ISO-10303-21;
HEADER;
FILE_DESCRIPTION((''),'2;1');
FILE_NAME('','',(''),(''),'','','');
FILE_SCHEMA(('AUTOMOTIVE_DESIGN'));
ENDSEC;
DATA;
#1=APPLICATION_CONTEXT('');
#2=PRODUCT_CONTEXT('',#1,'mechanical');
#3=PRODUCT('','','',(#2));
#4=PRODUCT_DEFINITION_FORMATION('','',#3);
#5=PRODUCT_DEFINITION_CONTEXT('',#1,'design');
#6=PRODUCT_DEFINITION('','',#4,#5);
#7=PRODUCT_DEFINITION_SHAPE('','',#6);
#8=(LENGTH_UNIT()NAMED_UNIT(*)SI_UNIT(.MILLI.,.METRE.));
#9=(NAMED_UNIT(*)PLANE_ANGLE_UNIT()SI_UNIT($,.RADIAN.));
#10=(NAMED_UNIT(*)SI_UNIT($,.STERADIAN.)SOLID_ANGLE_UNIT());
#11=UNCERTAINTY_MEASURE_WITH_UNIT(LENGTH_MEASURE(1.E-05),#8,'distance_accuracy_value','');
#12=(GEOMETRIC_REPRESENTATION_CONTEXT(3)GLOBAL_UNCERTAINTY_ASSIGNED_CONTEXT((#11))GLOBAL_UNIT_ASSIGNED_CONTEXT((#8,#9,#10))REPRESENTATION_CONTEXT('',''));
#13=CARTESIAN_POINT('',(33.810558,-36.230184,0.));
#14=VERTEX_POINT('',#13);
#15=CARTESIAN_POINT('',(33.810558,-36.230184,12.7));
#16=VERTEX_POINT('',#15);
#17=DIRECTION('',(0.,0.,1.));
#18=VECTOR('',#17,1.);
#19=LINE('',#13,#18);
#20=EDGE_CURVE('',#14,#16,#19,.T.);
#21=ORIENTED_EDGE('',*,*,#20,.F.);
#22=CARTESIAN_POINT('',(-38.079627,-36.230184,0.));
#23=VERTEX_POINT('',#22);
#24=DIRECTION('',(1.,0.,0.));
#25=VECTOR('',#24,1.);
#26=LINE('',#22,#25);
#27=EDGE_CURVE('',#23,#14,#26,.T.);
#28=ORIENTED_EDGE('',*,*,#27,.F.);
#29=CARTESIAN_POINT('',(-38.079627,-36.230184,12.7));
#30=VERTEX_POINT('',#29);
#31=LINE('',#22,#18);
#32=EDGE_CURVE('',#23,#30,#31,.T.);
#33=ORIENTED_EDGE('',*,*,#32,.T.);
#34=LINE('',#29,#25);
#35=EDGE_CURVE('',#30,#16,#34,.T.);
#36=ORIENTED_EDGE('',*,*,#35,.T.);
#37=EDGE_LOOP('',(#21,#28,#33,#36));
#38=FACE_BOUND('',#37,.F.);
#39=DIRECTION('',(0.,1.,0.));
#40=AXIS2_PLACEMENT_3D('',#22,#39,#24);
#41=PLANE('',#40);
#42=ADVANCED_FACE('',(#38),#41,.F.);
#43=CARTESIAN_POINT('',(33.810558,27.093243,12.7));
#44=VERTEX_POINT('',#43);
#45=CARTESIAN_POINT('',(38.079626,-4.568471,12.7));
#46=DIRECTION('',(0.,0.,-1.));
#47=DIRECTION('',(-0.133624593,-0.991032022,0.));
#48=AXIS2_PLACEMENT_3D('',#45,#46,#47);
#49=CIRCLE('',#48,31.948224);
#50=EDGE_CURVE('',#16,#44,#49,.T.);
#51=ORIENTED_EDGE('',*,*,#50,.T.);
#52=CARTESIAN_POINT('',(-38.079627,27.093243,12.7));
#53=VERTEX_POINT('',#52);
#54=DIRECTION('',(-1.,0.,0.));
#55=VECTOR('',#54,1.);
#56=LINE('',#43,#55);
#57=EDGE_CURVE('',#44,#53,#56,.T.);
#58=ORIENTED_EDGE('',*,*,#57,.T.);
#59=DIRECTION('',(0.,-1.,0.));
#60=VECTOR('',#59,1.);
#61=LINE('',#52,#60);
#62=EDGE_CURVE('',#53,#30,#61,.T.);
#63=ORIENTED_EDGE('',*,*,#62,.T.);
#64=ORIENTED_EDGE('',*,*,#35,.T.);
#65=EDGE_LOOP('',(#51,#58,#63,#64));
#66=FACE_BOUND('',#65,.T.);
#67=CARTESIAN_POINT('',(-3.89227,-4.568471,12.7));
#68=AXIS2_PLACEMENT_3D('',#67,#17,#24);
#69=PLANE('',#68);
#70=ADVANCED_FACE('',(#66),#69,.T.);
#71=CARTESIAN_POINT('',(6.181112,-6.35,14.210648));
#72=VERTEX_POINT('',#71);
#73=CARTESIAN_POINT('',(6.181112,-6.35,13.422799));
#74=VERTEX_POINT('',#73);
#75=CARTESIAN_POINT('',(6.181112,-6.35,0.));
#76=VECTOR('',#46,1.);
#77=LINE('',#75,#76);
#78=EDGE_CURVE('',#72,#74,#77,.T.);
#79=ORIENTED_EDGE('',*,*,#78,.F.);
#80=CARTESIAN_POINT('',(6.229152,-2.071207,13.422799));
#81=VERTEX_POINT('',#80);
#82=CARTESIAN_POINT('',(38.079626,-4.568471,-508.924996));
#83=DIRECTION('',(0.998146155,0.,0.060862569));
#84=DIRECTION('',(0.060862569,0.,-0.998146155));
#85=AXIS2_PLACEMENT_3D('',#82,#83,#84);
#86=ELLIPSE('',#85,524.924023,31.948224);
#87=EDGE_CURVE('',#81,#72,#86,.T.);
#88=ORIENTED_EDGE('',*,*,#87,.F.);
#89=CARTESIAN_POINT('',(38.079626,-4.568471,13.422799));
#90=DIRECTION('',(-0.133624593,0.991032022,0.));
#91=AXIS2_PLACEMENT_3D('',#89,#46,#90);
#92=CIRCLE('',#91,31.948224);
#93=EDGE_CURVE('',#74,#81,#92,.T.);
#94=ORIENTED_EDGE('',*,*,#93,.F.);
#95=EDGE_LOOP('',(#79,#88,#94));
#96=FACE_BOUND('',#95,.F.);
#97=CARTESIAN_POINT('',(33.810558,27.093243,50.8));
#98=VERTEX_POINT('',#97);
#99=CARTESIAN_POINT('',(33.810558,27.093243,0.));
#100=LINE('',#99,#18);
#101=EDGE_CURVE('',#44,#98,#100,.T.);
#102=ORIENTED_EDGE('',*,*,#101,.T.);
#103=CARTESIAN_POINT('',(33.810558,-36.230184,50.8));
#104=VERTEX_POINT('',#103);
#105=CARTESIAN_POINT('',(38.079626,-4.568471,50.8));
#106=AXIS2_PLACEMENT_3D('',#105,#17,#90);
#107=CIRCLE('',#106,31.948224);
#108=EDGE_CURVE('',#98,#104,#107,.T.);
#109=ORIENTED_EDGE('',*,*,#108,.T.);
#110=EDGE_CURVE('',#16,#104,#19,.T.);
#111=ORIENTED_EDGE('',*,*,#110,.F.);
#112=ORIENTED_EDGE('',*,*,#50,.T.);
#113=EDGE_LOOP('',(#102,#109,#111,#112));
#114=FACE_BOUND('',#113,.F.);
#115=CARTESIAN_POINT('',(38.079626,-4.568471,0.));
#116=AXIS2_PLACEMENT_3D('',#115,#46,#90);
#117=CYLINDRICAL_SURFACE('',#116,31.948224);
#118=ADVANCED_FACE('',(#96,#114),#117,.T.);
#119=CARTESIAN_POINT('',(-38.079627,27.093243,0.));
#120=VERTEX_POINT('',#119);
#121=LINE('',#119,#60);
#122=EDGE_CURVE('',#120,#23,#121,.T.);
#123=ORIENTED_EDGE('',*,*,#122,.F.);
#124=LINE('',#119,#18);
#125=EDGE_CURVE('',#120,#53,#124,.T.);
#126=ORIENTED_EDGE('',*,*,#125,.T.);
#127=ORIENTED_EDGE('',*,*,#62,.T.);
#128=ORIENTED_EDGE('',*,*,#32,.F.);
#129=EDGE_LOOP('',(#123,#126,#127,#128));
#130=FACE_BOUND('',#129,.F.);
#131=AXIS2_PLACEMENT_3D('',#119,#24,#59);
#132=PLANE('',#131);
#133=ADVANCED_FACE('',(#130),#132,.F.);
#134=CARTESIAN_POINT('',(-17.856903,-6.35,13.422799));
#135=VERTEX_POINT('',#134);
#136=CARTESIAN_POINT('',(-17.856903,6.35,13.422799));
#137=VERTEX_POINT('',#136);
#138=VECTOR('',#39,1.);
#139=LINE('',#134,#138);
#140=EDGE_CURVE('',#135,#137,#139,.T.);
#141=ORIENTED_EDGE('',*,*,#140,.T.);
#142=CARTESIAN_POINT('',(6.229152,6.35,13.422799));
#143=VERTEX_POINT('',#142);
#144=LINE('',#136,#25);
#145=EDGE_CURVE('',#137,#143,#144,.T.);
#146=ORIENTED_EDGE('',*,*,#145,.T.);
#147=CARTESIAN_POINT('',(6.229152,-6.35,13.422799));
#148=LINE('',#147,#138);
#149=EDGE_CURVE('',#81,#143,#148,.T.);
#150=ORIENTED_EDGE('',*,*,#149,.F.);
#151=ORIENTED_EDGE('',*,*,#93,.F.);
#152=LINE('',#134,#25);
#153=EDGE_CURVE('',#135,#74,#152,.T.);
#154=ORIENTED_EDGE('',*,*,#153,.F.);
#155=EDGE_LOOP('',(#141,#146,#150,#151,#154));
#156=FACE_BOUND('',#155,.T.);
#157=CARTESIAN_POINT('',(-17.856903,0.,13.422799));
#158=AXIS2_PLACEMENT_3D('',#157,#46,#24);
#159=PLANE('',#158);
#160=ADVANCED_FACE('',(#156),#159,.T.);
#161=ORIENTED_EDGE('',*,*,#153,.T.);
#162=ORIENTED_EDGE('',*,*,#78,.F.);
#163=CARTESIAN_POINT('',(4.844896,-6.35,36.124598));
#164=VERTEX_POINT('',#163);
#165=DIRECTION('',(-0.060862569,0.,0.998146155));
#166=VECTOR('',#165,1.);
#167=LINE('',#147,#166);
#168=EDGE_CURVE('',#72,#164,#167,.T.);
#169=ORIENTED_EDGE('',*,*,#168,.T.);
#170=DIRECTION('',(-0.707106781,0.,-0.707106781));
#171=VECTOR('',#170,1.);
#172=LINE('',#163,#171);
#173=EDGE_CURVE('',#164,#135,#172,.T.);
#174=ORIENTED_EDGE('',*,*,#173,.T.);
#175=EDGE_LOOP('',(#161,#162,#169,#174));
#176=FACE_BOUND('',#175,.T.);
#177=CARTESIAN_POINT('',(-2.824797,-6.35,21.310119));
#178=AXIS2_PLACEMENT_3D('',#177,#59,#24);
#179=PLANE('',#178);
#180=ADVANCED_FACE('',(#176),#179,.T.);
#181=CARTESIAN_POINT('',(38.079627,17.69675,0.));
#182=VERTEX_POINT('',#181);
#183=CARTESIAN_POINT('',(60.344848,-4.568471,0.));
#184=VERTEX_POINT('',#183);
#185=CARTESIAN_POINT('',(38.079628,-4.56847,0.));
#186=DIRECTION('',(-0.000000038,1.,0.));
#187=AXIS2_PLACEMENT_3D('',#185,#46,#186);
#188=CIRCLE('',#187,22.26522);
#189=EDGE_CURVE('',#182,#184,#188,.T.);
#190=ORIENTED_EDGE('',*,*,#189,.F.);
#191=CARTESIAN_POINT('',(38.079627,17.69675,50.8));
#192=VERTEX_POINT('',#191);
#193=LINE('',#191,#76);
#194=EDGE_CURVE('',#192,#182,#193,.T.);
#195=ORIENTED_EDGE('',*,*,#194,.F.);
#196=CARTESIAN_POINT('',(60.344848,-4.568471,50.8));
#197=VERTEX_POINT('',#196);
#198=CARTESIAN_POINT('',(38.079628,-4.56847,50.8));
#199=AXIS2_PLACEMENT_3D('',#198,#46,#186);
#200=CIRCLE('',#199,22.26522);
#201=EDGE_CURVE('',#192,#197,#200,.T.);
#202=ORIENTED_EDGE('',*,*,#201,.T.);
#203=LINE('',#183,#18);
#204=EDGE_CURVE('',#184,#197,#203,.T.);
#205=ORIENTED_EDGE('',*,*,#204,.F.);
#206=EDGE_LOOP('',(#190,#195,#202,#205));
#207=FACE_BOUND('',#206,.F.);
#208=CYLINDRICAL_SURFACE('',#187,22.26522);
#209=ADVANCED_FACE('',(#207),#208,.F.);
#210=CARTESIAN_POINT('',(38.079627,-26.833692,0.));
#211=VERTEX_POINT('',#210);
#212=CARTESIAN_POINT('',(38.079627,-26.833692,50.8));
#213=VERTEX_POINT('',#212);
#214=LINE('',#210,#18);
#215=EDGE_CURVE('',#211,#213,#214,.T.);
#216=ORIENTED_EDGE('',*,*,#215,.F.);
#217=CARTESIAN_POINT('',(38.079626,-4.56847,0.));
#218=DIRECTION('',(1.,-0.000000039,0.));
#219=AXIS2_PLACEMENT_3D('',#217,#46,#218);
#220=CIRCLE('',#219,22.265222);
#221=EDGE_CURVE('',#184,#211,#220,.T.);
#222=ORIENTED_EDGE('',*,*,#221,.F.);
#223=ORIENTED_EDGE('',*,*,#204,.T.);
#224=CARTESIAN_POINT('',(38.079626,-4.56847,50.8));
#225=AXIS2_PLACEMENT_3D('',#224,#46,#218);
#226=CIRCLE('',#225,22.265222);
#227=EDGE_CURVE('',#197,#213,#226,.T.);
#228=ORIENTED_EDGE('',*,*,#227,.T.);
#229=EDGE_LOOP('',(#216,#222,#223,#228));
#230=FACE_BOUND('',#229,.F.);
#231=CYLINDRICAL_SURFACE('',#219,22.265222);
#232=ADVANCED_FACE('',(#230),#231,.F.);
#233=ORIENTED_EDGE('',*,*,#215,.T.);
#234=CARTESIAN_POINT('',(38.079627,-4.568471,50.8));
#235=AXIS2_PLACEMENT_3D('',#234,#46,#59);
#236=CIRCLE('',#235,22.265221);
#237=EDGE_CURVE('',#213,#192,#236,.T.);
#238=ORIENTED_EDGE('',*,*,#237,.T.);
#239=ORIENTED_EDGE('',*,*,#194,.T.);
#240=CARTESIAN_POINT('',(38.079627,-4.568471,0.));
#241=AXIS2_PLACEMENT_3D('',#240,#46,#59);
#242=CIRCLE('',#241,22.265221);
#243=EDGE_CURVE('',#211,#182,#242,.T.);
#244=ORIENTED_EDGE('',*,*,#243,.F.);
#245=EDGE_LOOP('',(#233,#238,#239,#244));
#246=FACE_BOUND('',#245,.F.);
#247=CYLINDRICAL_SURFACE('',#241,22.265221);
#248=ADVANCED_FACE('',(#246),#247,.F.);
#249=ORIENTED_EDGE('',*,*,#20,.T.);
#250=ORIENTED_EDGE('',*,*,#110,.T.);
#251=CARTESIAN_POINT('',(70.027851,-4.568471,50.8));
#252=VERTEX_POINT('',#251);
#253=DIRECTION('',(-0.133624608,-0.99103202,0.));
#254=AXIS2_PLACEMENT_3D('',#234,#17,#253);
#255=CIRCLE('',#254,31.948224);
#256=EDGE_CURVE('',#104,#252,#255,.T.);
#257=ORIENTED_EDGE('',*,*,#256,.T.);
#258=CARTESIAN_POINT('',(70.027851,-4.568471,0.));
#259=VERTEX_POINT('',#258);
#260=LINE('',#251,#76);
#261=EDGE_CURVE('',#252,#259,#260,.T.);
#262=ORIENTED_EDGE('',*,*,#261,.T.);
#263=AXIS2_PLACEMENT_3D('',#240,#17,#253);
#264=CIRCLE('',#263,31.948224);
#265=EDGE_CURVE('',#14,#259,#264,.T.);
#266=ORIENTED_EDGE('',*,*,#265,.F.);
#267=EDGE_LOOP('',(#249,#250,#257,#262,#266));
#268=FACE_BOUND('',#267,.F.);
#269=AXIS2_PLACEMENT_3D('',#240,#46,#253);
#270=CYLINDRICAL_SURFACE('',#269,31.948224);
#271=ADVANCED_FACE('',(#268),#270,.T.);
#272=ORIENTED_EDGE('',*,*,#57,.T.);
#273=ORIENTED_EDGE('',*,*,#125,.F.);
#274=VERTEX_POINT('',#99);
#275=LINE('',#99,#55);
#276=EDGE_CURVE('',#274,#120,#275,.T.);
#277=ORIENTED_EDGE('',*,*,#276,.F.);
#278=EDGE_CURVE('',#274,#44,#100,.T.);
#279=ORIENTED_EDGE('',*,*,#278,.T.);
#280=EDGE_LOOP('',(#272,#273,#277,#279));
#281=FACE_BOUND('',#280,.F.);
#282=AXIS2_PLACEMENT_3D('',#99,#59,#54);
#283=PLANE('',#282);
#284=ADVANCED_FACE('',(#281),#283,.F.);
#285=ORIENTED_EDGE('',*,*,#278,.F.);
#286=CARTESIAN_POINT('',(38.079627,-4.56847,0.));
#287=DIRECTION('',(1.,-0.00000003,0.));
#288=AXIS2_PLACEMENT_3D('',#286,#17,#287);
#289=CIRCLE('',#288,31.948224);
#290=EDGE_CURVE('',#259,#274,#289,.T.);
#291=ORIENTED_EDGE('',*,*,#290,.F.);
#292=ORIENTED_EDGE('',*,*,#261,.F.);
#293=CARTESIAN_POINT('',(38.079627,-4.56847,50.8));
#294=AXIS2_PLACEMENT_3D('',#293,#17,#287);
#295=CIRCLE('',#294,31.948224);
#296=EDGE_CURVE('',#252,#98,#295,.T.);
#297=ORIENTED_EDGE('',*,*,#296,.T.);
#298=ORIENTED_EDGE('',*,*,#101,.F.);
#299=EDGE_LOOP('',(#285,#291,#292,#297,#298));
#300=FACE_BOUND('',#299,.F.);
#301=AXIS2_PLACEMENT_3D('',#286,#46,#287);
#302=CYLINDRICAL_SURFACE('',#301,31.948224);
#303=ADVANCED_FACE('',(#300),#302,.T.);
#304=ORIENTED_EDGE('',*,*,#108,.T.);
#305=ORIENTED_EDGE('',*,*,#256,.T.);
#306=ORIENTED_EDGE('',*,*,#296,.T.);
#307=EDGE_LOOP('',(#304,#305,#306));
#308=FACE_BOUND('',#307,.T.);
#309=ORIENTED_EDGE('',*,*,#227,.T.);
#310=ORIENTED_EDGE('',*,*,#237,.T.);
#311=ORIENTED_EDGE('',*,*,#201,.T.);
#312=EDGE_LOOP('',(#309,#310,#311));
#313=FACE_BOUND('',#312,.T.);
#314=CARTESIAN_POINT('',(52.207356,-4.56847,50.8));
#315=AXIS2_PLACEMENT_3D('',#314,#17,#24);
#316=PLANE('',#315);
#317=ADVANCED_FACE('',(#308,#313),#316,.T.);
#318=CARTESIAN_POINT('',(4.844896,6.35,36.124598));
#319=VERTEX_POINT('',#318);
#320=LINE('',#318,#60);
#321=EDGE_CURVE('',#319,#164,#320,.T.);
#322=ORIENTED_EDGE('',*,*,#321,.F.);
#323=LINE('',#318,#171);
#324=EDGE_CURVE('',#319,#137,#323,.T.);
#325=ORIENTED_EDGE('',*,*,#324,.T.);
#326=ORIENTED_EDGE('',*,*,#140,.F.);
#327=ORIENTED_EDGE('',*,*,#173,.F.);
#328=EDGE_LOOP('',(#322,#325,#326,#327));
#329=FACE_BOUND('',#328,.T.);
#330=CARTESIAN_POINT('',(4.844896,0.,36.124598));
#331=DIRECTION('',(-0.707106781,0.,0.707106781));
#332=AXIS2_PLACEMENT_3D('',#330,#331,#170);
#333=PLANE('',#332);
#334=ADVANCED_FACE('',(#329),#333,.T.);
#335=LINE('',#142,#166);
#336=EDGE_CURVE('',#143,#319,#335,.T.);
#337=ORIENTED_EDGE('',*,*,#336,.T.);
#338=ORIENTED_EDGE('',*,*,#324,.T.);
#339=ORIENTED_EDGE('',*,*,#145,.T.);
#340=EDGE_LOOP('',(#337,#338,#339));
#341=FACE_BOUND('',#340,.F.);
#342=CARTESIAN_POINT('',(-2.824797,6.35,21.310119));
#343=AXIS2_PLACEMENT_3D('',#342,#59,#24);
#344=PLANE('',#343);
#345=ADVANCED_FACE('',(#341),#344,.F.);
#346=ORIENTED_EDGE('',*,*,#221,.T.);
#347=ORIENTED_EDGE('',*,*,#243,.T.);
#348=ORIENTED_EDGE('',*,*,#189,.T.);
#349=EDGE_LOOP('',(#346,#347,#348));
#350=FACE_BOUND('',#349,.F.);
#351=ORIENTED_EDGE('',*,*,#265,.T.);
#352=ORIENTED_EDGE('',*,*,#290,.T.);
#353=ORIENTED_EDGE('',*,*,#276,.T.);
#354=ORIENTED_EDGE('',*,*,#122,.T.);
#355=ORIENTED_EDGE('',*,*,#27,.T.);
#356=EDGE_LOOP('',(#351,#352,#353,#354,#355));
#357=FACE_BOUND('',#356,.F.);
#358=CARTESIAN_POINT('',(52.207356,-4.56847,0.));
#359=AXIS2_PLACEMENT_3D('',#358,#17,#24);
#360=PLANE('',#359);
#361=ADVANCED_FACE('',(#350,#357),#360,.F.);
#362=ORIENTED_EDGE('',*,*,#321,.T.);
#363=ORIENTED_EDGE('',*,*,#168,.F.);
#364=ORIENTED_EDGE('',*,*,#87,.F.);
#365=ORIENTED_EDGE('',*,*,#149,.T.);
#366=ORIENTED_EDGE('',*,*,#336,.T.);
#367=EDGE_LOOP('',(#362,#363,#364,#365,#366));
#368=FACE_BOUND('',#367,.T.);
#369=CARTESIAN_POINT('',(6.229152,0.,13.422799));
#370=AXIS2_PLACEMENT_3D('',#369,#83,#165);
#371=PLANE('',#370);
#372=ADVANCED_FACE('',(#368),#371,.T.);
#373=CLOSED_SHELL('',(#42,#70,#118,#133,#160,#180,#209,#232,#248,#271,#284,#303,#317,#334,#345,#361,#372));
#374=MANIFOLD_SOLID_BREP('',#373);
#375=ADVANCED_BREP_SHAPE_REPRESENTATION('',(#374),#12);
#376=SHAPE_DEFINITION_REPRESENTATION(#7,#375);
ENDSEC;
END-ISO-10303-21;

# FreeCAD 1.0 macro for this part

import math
import FreeCAD as App
import Part
import Sketcher
from FreeCAD import Vector
Q = App.Units.Quantity


def add_polygon(sketch, points):
    """Adds a closed chain of lines whose ends are joined by coincident constraints."""
    first, n = sketch.GeometryCount, len(points)
    for a, b in zip(points, points[1:] + points[:1]):
        sketch.addGeometry(Part.LineSegment(App.Vector(*a, 0), App.Vector(*b, 0)), False)
    for i in range(n):
        sketch.addConstraint(Sketcher.Constraint("Coincident", first + i, 2, first + (i + 1) % n, 1))

doc = App.newDocument("Part")
body = doc.addObject("PartDesign::Body", "Body")

# Sketch on XY plane
sketch1 = doc.addObject("Sketcher::SketchObject", "Sketch")
body.addObject(sketch1)
sketch1.AttachmentSupport = (doc.XY_Plane, [""])
sketch1.MapMode = "FlatFace"
sketch1.addGeometry(Part.ArcOfCircle(Part.Circle(Vector(38, -5, 0), Vector(0, 0, 1), 32), math.radians(-98), math.radians(0)), False)
sketch1.addGeometry(Part.ArcOfCircle(Part.Circle(Vector(38, -5, 0), Vector(0, 0, 1), 32), math.radians(0), math.radians(98)), False)
sketch1.addGeometry(Part.ArcOfCircle(Part.Circle(Vector(38, -5, 0), Vector(0, 0, 1), 32), math.radians(98), math.radians(262)), False)
sketch1.addGeometry(Part.ArcOfCircle(Part.Circle(Vector(38, -5, 0), Vector(0, 0, 1), 22), math.radians(0), math.radians(90)), False)
sketch1.addGeometry(Part.ArcOfCircle(Part.Circle(Vector(38, -5, 0), Vector(0, 0, 1), 22), math.radians(-90), math.radians(0)), False)
sketch1.addGeometry(Part.ArcOfCircle(Part.Circle(Vector(38, -5, 0), Vector(0, 0, 1), 22), math.radians(90), math.radians(270)), False)
sketch1.addConstraint(Sketcher.Constraint("Tangent", 0, 2, 1, 1))
sketch1.addConstraint(Sketcher.Constraint("Tangent", 1, 2, 2, 1))
sketch1.addConstraint(Sketcher.Constraint("Tangent", 2, 2, 0, 1))
sketch1.addConstraint(Sketcher.Constraint("Tangent", 3, 1, 4, 2))
sketch1.addConstraint(Sketcher.Constraint("Tangent", 4, 1, 5, 2))
sketch1.addConstraint(Sketcher.Constraint("Tangent", 5, 1, 3, 2))
sketch1.addConstraint(Sketcher.Constraint("Coincident", 3, 3, 0, 3))
sketch1.addConstraint(Sketcher.Constraint("Horizontal", 5, 3, 0, 2))
sketch1.addConstraint(Sketcher.Constraint("Horizontal", 0, 2, 3, 1))
sketch1.addConstraint(Sketcher.Constraint("Vertical", 1, 2, 2, 2))
sketch1.addConstraint(Sketcher.Constraint("Vertical", 5, 3, 4, 1))
sketch1.addConstraint(Sketcher.Constraint("Vertical", 4, 1, 5, 1))
sketch1.addConstraint(Sketcher.Constraint("Radius", 3, Q("22.26522 mm")))
sketch1.addConstraint(Sketcher.Constraint("Radius", 0, Q("31.948224 mm")))
sketch1.addConstraint(Sketcher.Constraint("DistanceY", 0, 3, -1, 1, Q("4.568471 mm")))
sketch1.addConstraint(Sketcher.Constraint("DistanceX", -1, 1, 0, 2, Q("70.027851 mm")))
sketch1.addConstraint(Sketcher.Constraint("DistanceX", -1, 1, 2, 2, Q("33.810558 mm")))
pad1 = doc.addObject("PartDesign::Pad", "Pad")
body.addObject(pad1)
pad1.Profile = sketch1
pad1.Length = Q("2 in")

# Sketch on XY plane
sketch2 = doc.addObject("Sketcher::SketchObject", "Sketch001")
body.addObject(sketch2)
sketch2.AttachmentSupport = (doc.XY_Plane, [""])
sketch2.MapMode = "FlatFace"
sketch2.addGeometry(Part.LineSegment(Vector(33.8, 27.1, 0), Vector(38.1, 27.1, 0)), False)
sketch2.addGeometry(Part.LineSegment(Vector(38.1, 27.1, 0), Vector(38.1, 17.7, 0)), False)
sketch2.addGeometry(Part.ArcOfCircle(Part.Circle(Vector(38.1, -4.6, 0), Vector(0, 0, 1), 22.3), math.radians(0), math.radians(90)), False)
sketch2.addGeometry(Part.ArcOfCircle(Part.Circle(Vector(38.1, -4.6, 0), Vector(0, 0, 1), 22.3), math.radians(-90), math.radians(0)), False)
sketch2.addGeometry(Part.LineSegment(Vector(38.1, -26.8, 0), Vector(38.1, -36.2, 0)), False)
sketch2.addGeometry(Part.LineSegment(Vector(38.1, -36.2, 0), Vector(33.8, -36.2, 0)), False)
sketch2.addGeometry(Part.ArcOfCircle(Part.Circle(Vector(38.1, -4.6, 0), Vector(0, 0, 1), 31.9), math.radians(-98), math.radians(0)), False)
sketch2.addGeometry(Part.ArcOfCircle(Part.Circle(Vector(38.1, -4.6, 0), Vector(0, 0, 1), 31.9), math.radians(0), math.radians(98)), False)
sketch2.addGeometry(Part.ArcOfCircle(Part.Circle(Vector(38.1, -4.6, 0), Vector(0, 0, 1), 31.9), math.radians(98), math.radians(262)), False)
sketch2.addGeometry(Part.LineSegment(Vector(33.8, 27.1, 0), Vector(-38.1, 27.1, 0)), False)
sketch2.addGeometry(Part.LineSegment(Vector(-38.1, 27.1, 0), Vector(-38.1, -36.2, 0)), False)
sketch2.addGeometry(Part.LineSegment(Vector(-38.1, -36.2, 0), Vector(33.8, -36.2, 0)), False)
sketch2.addConstraint(Sketcher.Constraint("Coincident", 0, 2, 1, 1))
sketch2.addConstraint(Sketcher.Constraint("Coincident", 1, 2, 2, 2))
sketch2.addConstraint(Sketcher.Constraint("Tangent", 2, 1, 3, 2))
sketch2.addConstraint(Sketcher.Constraint("Coincident", 3, 1, 4, 1))
sketch2.addConstraint(Sketcher.Constraint("Coincident", 4, 2, 5, 1))
sketch2.addConstraint(Sketcher.Constraint("Coincident", 5, 2, 6, 1))
sketch2.addConstraint(Sketcher.Constraint("Tangent", 6, 2, 7, 1))
sketch2.addConstraint(Sketcher.Constraint("Coincident", 7, 2, 0, 1))
sketch2.addConstraint(Sketcher.Constraint("Coincident", 8, 1, 9, 1))
sketch2.addConstraint(Sketcher.Constraint("Coincident", 9, 2, 10, 1))
sketch2.addConstraint(Sketcher.Constraint("Coincident", 10, 2, 11, 1))
sketch2.addConstraint(Sketcher.Constraint("Coincident", 11, 2, 8, 2))
sketch2.addConstraint(Sketcher.Constraint("Horizontal", 0))
sketch2.addConstraint(Sketcher.Constraint("Vertical", 1))
sketch2.addConstraint(Sketcher.Constraint("Vertical", 4))
sketch2.addConstraint(Sketcher.Constraint("Horizontal", 5))
sketch2.addConstraint(Sketcher.Constraint("Horizontal", 9))
sketch2.addConstraint(Sketcher.Constraint("Vertical", 10))
sketch2.addConstraint(Sketcher.Constraint("Horizontal", 11))
sketch2.addConstraint(Sketcher.Constraint("Coincident", 6, 3, 2, 3))
sketch2.addConstraint(Sketcher.Constraint("Coincident", 8, 3, 2, 3))
sketch2.addConstraint(Sketcher.Constraint("Coincident", 8, 1, 7, 2))
sketch2.addConstraint(Sketcher.Constraint("Coincident", 11, 2, 5, 2))
sketch2.addConstraint(Sketcher.Constraint("Equal", 2, 3))
sketch2.addConstraint(Sketcher.Constraint("Horizontal", 8, 3, 2, 1))
sketch2.addConstraint(Sketcher.Constraint("Horizontal", 2, 1, 6, 2))
sketch2.addConstraint(Sketcher.Constraint("Vertical", 8, 3, 0, 2))
sketch2.addConstraint(Sketcher.Constraint("Vertical", 1, 2, 3, 1))
sketch2.addConstraint(Sketcher.Constraint("Vertical", 5, 2, 7, 2))
sketch2.addConstraint(Sketcher.Constraint("Radius", 2, Q("22.26522 mm")))
sketch2.addConstraint(Sketcher.Constraint("Radius", 6, Q("31.948224 mm")))
sketch2.addConstraint(Sketcher.Constraint("DistanceX", 0, 1, 0, 2, Q("4.269069 mm")))
sketch2.addConstraint(Sketcher.Constraint("DistanceX", 9, 2, 9, 1, Q("71.890185 mm")))
sketch2.addConstraint(Sketcher.Constraint("DistanceY", 2, 3, -1, 1, Q("4.56847 mm")))
sketch2.addConstraint(Sketcher.Constraint("DistanceX", -1, 1, 6, 2, Q("70.027851 mm")))
pad2 = doc.addObject("PartDesign::Pad", "Pad001")
body.addObject(pad2)
pad2.Profile = sketch2
pad2.Length = Q("0.5 in")

# Sketch on XZ plane
sketch3 = doc.addObject("Sketcher::SketchObject", "Sketch002")
body.addObject(sketch3)
sketch3.AttachmentSupport = (doc.XZ_Plane, [""])
sketch3.MapMode = "FlatFace"
add_polygon(sketch3, [(6, 13), (5, 36), (-18, 13)])  # lines 0-2
sketch3.addConstraint(Sketcher.Constraint("Horizontal", 2))
sketch3.addConstraint(Sketcher.Constraint("Angle", 1, Q("-135 deg")))
sketch3.addConstraint(Sketcher.Constraint("DistanceY", -1, 1, 1, 2, Q("13.422799 mm")))
sketch3.addConstraint(Sketcher.Constraint("DistanceX", 1, 2, 0, 2, Q("22.701799 mm")))
sketch3.addConstraint(Sketcher.Constraint("DistanceX", 2, 1, 2, 2, Q("24.086055 mm")))
sketch3.addConstraint(Sketcher.Constraint("DistanceX", -1, 1, 0, 2, Q("4.844896 mm")))
pad3 = doc.addObject("PartDesign::Pad", "Pad002")
body.addObject(pad3)
pad3.Profile = sketch3
pad3.Length = Q("0.5 in")
pad3.Midplane = True

doc.recompute()
